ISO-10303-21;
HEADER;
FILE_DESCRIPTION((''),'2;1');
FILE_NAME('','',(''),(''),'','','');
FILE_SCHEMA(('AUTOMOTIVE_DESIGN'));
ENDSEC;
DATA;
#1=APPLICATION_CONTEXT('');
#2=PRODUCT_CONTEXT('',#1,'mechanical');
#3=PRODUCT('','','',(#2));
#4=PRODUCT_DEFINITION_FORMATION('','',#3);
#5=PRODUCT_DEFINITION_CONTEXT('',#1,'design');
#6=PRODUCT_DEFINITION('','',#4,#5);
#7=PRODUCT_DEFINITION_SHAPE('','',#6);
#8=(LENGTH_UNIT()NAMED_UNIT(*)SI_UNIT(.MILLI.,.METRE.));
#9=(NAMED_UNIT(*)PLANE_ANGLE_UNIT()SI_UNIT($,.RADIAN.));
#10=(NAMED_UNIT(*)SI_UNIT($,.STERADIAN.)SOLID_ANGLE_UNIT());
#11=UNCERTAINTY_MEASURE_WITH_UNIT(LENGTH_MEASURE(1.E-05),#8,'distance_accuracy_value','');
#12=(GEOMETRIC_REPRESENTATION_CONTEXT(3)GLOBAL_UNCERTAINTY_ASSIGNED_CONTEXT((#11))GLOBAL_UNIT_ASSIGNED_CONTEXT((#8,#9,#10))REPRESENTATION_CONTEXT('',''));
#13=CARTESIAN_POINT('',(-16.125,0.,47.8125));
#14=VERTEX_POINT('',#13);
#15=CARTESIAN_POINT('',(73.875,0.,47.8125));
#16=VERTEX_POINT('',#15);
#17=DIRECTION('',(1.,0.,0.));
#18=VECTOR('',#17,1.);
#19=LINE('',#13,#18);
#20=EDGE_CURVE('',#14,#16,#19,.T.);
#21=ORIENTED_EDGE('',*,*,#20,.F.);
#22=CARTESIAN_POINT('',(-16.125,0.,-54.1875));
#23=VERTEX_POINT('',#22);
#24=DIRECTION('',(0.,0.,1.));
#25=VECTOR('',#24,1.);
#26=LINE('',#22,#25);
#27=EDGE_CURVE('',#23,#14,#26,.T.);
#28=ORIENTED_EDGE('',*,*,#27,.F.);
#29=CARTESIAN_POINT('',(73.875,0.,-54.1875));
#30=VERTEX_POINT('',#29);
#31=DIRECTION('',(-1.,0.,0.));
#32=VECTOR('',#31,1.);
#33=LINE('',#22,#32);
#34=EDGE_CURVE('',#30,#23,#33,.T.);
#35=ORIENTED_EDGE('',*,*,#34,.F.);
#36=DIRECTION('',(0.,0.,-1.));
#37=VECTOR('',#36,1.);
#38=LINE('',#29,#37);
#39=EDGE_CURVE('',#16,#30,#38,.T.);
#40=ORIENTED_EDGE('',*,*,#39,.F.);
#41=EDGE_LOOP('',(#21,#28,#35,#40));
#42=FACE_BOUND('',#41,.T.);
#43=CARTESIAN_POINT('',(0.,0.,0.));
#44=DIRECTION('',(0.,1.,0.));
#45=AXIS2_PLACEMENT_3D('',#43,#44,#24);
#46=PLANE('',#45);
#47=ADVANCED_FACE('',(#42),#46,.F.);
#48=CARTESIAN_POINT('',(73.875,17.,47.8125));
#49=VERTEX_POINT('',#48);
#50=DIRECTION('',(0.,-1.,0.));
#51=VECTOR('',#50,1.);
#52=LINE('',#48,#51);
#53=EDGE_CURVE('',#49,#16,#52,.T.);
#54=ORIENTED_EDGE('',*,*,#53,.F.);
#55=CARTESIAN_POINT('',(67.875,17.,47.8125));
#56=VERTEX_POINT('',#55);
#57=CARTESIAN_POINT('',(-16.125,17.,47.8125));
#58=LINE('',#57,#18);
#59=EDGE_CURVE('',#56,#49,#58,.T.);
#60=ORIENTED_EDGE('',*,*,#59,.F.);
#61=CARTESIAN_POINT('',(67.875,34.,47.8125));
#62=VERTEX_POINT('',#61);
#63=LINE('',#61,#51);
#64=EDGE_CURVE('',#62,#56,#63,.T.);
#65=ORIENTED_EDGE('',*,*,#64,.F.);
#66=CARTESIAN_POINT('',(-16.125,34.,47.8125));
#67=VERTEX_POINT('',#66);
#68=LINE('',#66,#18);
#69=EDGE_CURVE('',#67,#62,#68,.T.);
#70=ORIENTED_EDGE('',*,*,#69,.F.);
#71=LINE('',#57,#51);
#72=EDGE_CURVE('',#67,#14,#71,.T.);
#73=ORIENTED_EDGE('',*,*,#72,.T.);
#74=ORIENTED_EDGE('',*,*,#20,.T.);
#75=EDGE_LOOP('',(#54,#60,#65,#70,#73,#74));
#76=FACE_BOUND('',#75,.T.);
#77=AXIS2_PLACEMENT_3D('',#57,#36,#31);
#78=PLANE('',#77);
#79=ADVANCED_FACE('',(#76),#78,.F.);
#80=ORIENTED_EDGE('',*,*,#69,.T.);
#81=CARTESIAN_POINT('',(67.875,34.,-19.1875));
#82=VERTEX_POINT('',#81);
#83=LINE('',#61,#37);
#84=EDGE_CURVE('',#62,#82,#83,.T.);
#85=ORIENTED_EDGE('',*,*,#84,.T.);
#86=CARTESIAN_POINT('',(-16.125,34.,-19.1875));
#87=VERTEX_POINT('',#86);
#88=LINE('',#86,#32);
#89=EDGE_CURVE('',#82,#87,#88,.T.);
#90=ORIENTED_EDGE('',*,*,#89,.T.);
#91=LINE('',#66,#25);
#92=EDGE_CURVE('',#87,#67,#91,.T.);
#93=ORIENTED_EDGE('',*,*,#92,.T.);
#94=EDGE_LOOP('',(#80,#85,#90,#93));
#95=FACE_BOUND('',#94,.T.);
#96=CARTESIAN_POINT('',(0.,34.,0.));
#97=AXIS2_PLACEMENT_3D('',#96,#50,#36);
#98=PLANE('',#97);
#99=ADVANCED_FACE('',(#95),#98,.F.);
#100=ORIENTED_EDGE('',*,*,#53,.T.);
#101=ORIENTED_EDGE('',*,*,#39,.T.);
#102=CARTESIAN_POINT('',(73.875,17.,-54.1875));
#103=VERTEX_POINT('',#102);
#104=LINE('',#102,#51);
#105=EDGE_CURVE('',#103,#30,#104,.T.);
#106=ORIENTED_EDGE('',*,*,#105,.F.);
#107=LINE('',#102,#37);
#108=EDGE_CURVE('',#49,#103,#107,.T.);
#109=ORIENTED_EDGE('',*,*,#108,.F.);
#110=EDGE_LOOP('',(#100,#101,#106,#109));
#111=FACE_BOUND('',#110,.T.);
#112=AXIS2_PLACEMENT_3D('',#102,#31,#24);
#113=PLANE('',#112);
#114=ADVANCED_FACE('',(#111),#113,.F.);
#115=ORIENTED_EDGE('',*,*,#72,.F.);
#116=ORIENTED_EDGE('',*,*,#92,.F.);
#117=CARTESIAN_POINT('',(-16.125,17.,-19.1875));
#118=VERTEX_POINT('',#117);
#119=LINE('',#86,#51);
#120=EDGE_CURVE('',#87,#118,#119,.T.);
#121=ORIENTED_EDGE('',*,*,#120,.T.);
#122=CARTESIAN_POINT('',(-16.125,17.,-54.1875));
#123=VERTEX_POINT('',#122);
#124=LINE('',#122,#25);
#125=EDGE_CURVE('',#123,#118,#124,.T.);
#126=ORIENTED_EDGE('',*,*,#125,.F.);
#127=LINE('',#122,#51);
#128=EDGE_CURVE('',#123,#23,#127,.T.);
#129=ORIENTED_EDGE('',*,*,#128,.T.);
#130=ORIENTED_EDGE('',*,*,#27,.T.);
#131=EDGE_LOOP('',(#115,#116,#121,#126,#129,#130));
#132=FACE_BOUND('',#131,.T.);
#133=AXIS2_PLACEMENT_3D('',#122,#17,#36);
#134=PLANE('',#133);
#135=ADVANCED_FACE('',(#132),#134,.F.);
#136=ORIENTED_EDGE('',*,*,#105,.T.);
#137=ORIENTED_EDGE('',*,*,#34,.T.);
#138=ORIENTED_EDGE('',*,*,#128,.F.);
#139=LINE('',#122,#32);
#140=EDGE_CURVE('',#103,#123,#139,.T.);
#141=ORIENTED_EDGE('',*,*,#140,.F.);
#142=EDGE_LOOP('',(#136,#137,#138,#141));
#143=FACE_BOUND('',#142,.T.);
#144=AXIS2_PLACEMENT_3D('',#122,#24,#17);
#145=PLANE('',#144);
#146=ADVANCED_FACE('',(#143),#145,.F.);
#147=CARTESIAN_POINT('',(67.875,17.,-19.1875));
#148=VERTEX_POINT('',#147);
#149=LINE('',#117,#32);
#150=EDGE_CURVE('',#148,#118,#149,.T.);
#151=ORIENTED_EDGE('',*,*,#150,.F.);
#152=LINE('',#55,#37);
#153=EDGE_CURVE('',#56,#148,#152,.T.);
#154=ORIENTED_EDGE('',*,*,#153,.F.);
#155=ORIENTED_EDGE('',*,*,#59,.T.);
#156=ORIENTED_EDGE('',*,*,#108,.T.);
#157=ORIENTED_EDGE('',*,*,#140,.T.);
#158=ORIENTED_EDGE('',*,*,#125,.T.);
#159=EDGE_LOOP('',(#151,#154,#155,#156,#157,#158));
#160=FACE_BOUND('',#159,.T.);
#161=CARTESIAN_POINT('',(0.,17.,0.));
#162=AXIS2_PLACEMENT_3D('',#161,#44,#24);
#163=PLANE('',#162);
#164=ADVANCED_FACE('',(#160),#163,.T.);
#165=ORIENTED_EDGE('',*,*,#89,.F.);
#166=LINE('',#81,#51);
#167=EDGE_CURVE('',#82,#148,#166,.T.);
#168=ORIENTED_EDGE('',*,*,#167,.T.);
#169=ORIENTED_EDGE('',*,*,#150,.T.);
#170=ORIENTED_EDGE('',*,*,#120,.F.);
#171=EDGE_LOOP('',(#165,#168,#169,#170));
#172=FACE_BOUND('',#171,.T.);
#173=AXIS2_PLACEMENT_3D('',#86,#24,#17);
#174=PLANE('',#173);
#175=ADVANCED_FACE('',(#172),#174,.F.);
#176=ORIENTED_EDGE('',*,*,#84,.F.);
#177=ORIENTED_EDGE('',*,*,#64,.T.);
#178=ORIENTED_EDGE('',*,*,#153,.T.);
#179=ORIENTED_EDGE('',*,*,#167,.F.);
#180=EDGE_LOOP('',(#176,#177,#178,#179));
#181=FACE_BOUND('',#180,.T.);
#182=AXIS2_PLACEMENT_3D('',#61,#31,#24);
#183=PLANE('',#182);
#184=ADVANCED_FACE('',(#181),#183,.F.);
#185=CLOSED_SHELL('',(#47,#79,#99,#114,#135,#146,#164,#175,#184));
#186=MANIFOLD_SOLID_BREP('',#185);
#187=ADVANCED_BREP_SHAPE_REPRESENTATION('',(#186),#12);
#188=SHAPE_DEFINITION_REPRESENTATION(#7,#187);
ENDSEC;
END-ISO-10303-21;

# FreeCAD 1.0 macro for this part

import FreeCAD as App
import Part
import Sketcher
from FreeCAD import Vector

doc = App.newDocument("Part")
body = doc.addObject("PartDesign::Body", "Body")

# Sketch on XZ plane
sketch1 = body.newObject("Sketcher::SketchObject", "Sketch")
sketch1.AttachmentSupport = (doc.getObject("XZ_Plane"), [""])
sketch1.MapMode = "FlatFace"
sketch1.addGeometry([
    Part.LineSegment(Vector(-16, -54, 0), Vector(-16, 48, 0)),
    Part.LineSegment(Vector(-16, 48, 0), Vector(74, 48, 0)),
    Part.LineSegment(Vector(74, 48, 0), Vector(74, -54, 0)),
    Part.LineSegment(Vector(74, -54, 0), Vector(-16, -54, 0)),
], False)
sketch1.addConstraint([
    Sketcher.Constraint("Coincident", 0, 2, 1, 1),
    Sketcher.Constraint("Coincident", 1, 2, 2, 1),
    Sketcher.Constraint("Coincident", 2, 2, 3, 1),
    Sketcher.Constraint("Coincident", 3, 2, 0, 1),
    Sketcher.Constraint("Vertical", 0),
    Sketcher.Constraint("Horizontal", 1),
    Sketcher.Constraint("Vertical", 2),
    Sketcher.Constraint("Horizontal", 3),
    Sketcher.Constraint("DistanceX", 1, 1, 1, 2, 90.0),
    Sketcher.Constraint("DistanceY", 0, 1, 0, 2, 102.0),
    Sketcher.Constraint("DistanceX", 0, 2, -1, 1, 16.125),
    Sketcher.Constraint("DistanceY", -1, 1, 0, 2, 47.8125),
])
pad1 = body.newObject("PartDesign::Pad", "Pad")
pad1.Profile = sketch1
pad1.Length = 17
pad1.Reversed = True

# Sketch on XZ plane
sketch2 = body.newObject("Sketcher::SketchObject", "Sketch001")
sketch2.AttachmentSupport = (doc.getObject("XZ_Plane"), [""])
sketch2.MapMode = "FlatFace"
sketch2.AttachmentOffset = App.Placement(Vector(0, 0, -17), App.Rotation())
sketch2.addGeometry([
    Part.LineSegment(Vector(-16, -19, 0), Vector(-16, 48, 0)),
    Part.LineSegment(Vector(-16, 48, 0), Vector(68, 48, 0)),
    Part.LineSegment(Vector(68, 48, 0), Vector(68, -19, 0)),
    Part.LineSegment(Vector(68, -19, 0), Vector(-16, -19, 0)),
], False)
sketch2.addConstraint([
    Sketcher.Constraint("Coincident", 0, 2, 1, 1),
    Sketcher.Constraint("Coincident", 1, 2, 2, 1),
    Sketcher.Constraint("Coincident", 2, 2, 3, 1),
    Sketcher.Constraint("Coincident", 3, 2, 0, 1),
    Sketcher.Constraint("Vertical", 0),
    Sketcher.Constraint("Horizontal", 1),
    Sketcher.Constraint("Vertical", 2),
    Sketcher.Constraint("Horizontal", 3),
    Sketcher.Constraint("DistanceX", 1, 1, 1, 2, 84.0),
    Sketcher.Constraint("DistanceY", 0, 1, 0, 2, 67.0),
    Sketcher.Constraint("DistanceX", 0, 2, -1, 1, 16.125),
    Sketcher.Constraint("DistanceY", -1, 1, 0, 2, 47.8125),
])
pad2 = body.newObject("PartDesign::Pad", "Pad001")
pad2.Profile = sketch2
pad2.Length = 17
pad2.Reversed = True

doc.recompute()
